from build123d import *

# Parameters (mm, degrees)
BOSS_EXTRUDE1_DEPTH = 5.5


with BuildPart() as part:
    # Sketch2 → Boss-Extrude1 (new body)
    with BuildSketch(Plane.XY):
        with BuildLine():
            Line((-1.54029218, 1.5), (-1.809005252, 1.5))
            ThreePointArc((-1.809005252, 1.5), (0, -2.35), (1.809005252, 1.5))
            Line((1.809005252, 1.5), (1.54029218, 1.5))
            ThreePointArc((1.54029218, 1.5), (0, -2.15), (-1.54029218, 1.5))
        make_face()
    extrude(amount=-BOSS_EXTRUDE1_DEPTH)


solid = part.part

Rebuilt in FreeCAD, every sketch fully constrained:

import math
import FreeCAD as App
import Part
import Sketcher

doc = App.newDocument("Part")
body = doc.addObject("PartDesign::Body", "Body")

# Sketch on XY plane
sketch1 = doc.addObject("Sketcher::SketchObject", "Sketch")
body.addObject(sketch1)
sketch1.AttachmentSupport = (doc.XY_Plane, [""])
sketch1.MapMode = "FlatFace"
sketch1.addGeometry([
    Part.LineSegment(App.Vector(-1.54, 1.5, 0), App.Vector(-1.81, 1.5, 0)),
    Part.ArcOfCircle(Part.Circle(App.Vector(0, 0, 0), App.Vector(0, 0, 1), 2.35), math.radians(140), math.radians(400)),
    Part.LineSegment(App.Vector(1.81, 1.5, 0), App.Vector(1.54, 1.5, 0)),
    Part.ArcOfCircle(Part.Circle(App.Vector(0, 0, 0), App.Vector(0, 0, 1), 2.15), math.radians(136), math.radians(404)),
], False)
sketch1.addConstraint([
    Sketcher.Constraint("Coincident", 0, 2, 1, 1),
    Sketcher.Constraint("Coincident", 1, 2, 2, 1),
    Sketcher.Constraint("Coincident", 2, 2, 3, 2),
    Sketcher.Constraint("Coincident", 3, 1, 0, 1),
    Sketcher.Constraint("Horizontal", 0),
    Sketcher.Constraint("Horizontal", 2),
    Sketcher.Constraint("Coincident", 1, 3, -1, 1),
    Sketcher.Constraint("Coincident", 3, 3, -1, 1),
    Sketcher.Constraint("Horizontal", 0, 2, 1, 2),
    Sketcher.Constraint("Radius", 1, 2.35),
    Sketcher.Constraint("Radius", 3, 2.15),
    Sketcher.Constraint("DistanceY", -1, 1, 0, 2, 1.5),
])
pad1 = doc.addObject("PartDesign::Pad", "Pad")
body.addObject(pad1)
pad1.Profile = sketch1
pad1.Length = 5.5
pad1.Reversed = True

doc.recompute()
